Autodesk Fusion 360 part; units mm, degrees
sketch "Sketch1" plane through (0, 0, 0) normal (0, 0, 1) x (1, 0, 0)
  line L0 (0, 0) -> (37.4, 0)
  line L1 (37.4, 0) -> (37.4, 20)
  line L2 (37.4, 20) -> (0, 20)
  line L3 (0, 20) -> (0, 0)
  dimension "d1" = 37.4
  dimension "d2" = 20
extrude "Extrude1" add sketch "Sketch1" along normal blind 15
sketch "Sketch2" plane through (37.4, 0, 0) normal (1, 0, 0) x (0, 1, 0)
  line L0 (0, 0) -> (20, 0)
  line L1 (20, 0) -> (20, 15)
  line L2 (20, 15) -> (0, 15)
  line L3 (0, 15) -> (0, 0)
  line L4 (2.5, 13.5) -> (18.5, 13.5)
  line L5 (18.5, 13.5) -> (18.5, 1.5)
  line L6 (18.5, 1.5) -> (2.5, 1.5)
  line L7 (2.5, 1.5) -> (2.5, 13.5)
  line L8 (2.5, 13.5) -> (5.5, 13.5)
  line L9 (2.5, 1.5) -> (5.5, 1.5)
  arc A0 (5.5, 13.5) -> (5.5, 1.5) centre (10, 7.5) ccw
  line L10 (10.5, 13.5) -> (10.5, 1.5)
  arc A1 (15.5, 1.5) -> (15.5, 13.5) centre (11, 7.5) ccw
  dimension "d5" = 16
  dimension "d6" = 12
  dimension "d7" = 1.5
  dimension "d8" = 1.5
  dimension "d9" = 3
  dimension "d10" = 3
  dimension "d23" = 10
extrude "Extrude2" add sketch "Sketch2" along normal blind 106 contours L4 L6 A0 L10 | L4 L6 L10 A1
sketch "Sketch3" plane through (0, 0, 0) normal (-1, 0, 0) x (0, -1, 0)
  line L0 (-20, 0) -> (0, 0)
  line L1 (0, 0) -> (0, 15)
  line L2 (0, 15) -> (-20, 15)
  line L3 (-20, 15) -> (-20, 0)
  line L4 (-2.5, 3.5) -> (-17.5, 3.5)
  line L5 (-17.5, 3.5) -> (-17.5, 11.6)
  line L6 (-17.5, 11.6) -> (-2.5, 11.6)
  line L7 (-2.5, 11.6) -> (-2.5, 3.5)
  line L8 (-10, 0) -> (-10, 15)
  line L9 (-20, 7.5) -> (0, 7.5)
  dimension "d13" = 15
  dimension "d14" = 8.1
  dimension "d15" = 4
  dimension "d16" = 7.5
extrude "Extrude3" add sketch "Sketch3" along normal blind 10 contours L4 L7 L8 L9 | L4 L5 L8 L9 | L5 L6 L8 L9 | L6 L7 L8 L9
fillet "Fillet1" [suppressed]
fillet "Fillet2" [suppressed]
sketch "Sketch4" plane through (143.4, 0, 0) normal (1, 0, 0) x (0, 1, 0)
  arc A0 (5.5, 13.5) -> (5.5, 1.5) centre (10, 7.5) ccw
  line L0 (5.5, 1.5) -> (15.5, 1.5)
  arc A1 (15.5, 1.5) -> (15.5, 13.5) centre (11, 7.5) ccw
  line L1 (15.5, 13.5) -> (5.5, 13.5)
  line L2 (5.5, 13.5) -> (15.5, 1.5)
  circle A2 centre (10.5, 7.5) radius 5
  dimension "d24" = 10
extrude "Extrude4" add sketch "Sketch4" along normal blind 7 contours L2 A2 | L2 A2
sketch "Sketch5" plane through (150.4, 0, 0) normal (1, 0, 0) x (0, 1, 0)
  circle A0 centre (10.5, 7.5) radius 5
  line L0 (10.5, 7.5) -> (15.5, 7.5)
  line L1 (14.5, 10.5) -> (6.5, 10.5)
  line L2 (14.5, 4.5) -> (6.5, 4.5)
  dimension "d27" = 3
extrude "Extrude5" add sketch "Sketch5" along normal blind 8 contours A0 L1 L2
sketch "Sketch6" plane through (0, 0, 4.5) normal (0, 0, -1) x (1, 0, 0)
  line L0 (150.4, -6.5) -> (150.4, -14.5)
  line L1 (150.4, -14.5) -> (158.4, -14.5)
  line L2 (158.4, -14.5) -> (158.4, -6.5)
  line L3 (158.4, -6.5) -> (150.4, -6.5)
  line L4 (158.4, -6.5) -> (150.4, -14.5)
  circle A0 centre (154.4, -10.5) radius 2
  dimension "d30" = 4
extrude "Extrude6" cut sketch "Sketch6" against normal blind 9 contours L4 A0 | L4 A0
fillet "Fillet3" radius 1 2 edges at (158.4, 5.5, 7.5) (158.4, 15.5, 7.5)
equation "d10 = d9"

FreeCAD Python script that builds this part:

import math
import FreeCAD as App
import Part
import Sketcher


def edges_at(feature, points):
    """Names of the edges that pass closest to the given points."""
    edges = feature.Shape.Edges
    near = lambda p: min(range(len(edges)), key=lambda i: edges[i].distToShape(Part.Vertex(*p))[0])
    return sorted({f"Edge{near(p) + 1}" for p in points})

doc = App.newDocument("Part")
body = doc.addObject("PartDesign::Body", "Body")

# Sketch on XY plane
sketch1 = body.newObject("Sketcher::SketchObject", "Sketch")
sketch1.AttachmentSupport = (doc.getObject("XY_Plane"), [""])
sketch1.MapMode = "FlatFace"
sketch1.addGeometry([
    Part.LineSegment(App.Vector(0, 20, 0), App.Vector(0, 0, 0)),
    Part.LineSegment(App.Vector(0, 0, 0), App.Vector(37, 0, 0)),
    Part.LineSegment(App.Vector(37, 0, 0), App.Vector(37, 20, 0)),
    Part.LineSegment(App.Vector(37, 20, 0), App.Vector(0, 20, 0)),
], False)
sketch1.addConstraint([
    Sketcher.Constraint("Coincident", 0, 2, 1, 1),
    Sketcher.Constraint("Coincident", 1, 2, 2, 1),
    Sketcher.Constraint("Coincident", 2, 2, 3, 1),
    Sketcher.Constraint("Coincident", 3, 2, 0, 1),
    Sketcher.Constraint("Vertical", 0),
    Sketcher.Constraint("Horizontal", 1),
    Sketcher.Constraint("Vertical", 2),
    Sketcher.Constraint("Horizontal", 3),
    Sketcher.Constraint("Coincident", 0, 2, -1, 1),
    Sketcher.Constraint("DistanceY", 0, 2, 0, 1, 20.0),
    Sketcher.Constraint("DistanceX", 1, 1, 1, 2, 37.4),
])
pad1 = body.newObject("PartDesign::Pad", "Pad")
pad1.Profile = sketch1
pad1.Length = 15

# Sketch on YZ plane
sketch2 = body.newObject("Sketcher::SketchObject", "Sketch001")
sketch2.AttachmentSupport = (doc.getObject("YZ_Plane"), [""])
sketch2.MapMode = "FlatFace"
sketch2.AttachmentOffset = App.Placement(App.Vector(0, 0, 37.4), App.Rotation())
sketch2.addGeometry([
    Part.ArcOfCircle(Part.Circle(App.Vector(10, 8, 0), App.Vector(0, 0, 1), 8), math.radians(127), math.radians(233)),
    Part.LineSegment(App.Vector(6, 2, 0), App.Vector(16, 2, 0)),
    Part.ArcOfCircle(Part.Circle(App.Vector(11, 8, 0), App.Vector(0, 0, 1), 8), math.radians(-53), math.radians(53)),
    Part.LineSegment(App.Vector(16, 14, 0), App.Vector(6, 14, 0)),
], False)
sketch2.addConstraint([
    Sketcher.Constraint("Coincident", 0, 2, 1, 1),
    Sketcher.Constraint("Coincident", 1, 2, 2, 1),
    Sketcher.Constraint("Coincident", 2, 2, 3, 1),
    Sketcher.Constraint("Coincident", 3, 2, 0, 1),
    Sketcher.Constraint("Horizontal", 1),
    Sketcher.Constraint("Horizontal", 3),
    Sketcher.Constraint("Equal", 0, 2),
    Sketcher.Constraint("Horizontal", 0, 3, 2, 3),
    Sketcher.Constraint("Vertical", 1, 2, 2, 2),
    Sketcher.Constraint("DistanceX", 1, 1, 1, 2, 10.0),
    Sketcher.Constraint("DistanceX", -1, 1, 0, 3, 10.0),
    Sketcher.Constraint("DistanceY", 1, 2, 2, 2, 12.0),
    Sketcher.Constraint("DistanceY", -1, 1, 0, 2, 1.5),
    Sketcher.Constraint("Radius", 0, 7.5),
])
pad2 = body.newObject("PartDesign::Pad", "Pad001")
pad2.Profile = sketch2
pad2.Length = 106

# Sketch on YZ plane
sketch3 = body.newObject("Sketcher::SketchObject", "Sketch002")
sketch3.AttachmentSupport = (doc.getObject("YZ_Plane"), [""])
sketch3.MapMode = "FlatFace"
sketch3.addGeometry([
    Part.LineSegment(App.Vector(2, 4, 0), App.Vector(2, 12, 0)),
    Part.LineSegment(App.Vector(2, 12, 0), App.Vector(18, 12, 0)),
    Part.LineSegment(App.Vector(18, 12, 0), App.Vector(18, 4, 0)),
    Part.LineSegment(App.Vector(18, 4, 0), App.Vector(2, 4, 0)),
], False)
sketch3.addConstraint([
    Sketcher.Constraint("Coincident", 0, 2, 1, 1),
    Sketcher.Constraint("Coincident", 1, 2, 2, 1),
    Sketcher.Constraint("Coincident", 2, 2, 3, 1),
    Sketcher.Constraint("Coincident", 3, 2, 0, 1),
    Sketcher.Constraint("Vertical", 0),
    Sketcher.Constraint("Horizontal", 1),
    Sketcher.Constraint("Vertical", 2),
    Sketcher.Constraint("Horizontal", 3),
    Sketcher.Constraint("DistanceX", 1, 1, 1, 2, 15.0),
    Sketcher.Constraint("DistanceY", 0, 1, 0, 2, 8.1),
    Sketcher.Constraint("DistanceX", -1, 1, 0, 2, 2.5),
    Sketcher.Constraint("DistanceY", -1, 1, 0, 2, 11.6),
])
pad3 = body.newObject("PartDesign::Pad", "Pad002")
pad3.Profile = sketch3
pad3.Length = 10
pad3.Reversed = True

# Sketch on YZ plane
sketch4 = body.newObject("Sketcher::SketchObject", "Sketch003")
sketch4.AttachmentSupport = (doc.getObject("YZ_Plane"), [""])
sketch4.MapMode = "FlatFace"
sketch4.AttachmentOffset = App.Placement(App.Vector(0, 0, 143.4), App.Rotation())
sketch4.addGeometry(Part.Circle(App.Vector(10, 8, 0), App.Vector(0, 0, 1), 5), False)
sketch4.addConstraint([
    Sketcher.Constraint("Diameter", 0, 10.0),
    Sketcher.Constraint("DistanceX", -1, 1, 0, 3, 10.5),
    Sketcher.Constraint("DistanceY", -1, 1, 0, 3, 7.5),
])
pad4 = body.newObject("PartDesign::Pad", "Pad003")
pad4.Profile = sketch4
pad4.Length = 7

# Sketch on YZ plane
sketch5 = body.newObject("Sketcher::SketchObject", "Sketch004")
sketch5.AttachmentSupport = (doc.getObject("YZ_Plane"), [""])
sketch5.MapMode = "FlatFace"
sketch5.AttachmentOffset = App.Placement(App.Vector(0, 0, 150.4), App.Rotation())
sketch5.addGeometry([
    Part.ArcOfCircle(Part.Circle(App.Vector(10, 8, 0), App.Vector(0, 0, 1), 5), math.radians(-37), math.radians(37)),
    Part.LineSegment(App.Vector(14, 10, 0), App.Vector(6, 10, 0)),
    Part.ArcOfCircle(Part.Circle(App.Vector(10, 8, 0), App.Vector(0, 0, 1), 5), math.radians(143), math.radians(217)),
    Part.LineSegment(App.Vector(6, 4, 0), App.Vector(14, 4, 0)),
], False)
sketch5.addConstraint([
    Sketcher.Constraint("Coincident", 0, 2, 1, 1),
    Sketcher.Constraint("Coincident", 1, 2, 2, 1),
    Sketcher.Constraint("Coincident", 2, 2, 3, 1),
    Sketcher.Constraint("Coincident", 3, 2, 0, 1),
    Sketcher.Constraint("Horizontal", 1),
    Sketcher.Constraint("Horizontal", 3),
    Sketcher.Constraint("Coincident", 2, 3, 0, 3),
    Sketcher.Constraint("Equal", 0, 2),
    Sketcher.Constraint("Vertical", 1, 2, 2, 2),
    Sketcher.Constraint("Radius", 0, 5.0),
    Sketcher.Constraint("DistanceY", 0, 3, 0, 2, 3.0),
    Sketcher.Constraint("DistanceX", -1, 1, 0, 3, 10.5),
    Sketcher.Constraint("DistanceY", -1, 1, 0, 3, 7.5),
])
pad5 = body.newObject("PartDesign::Pad", "Pad004")
pad5.Profile = sketch5
pad5.Length = 8

# Sketch on XY plane
sketch6 = body.newObject("Sketcher::SketchObject", "Sketch005")
sketch6.AttachmentSupport = (doc.getObject("XY_Plane"), [""])
sketch6.MapMode = "FlatFace"
sketch6.AttachmentOffset = App.Placement(App.Vector(0, 0, 4.5), App.Rotation())
sketch6.addGeometry(Part.Circle(App.Vector(154.4, 10.5, 0), App.Vector(0, 0, 1), 2), False)
sketch6.addConstraint([
    Sketcher.Constraint("Diameter", 0, 4.0),
    Sketcher.Constraint("DistanceX", -1, 1, 0, 3, 154.4),
    Sketcher.Constraint("DistanceY", -1, 1, 0, 3, 10.5),
])
pocket1 = body.newObject("PartDesign::Pocket", "Pocket")
pocket1.Profile = sketch6
pocket1.Length = 9
pocket1.Reversed = True
doc.recompute()

fillet = body.newObject("PartDesign::Fillet", "Fillet")
fillet.Base = (pocket1, edges_at(pocket1, [(158.4, 5.5, 7.5), (158.4, 15.5, 7.5)]))
fillet.Radius = 1

doc.recompute()
